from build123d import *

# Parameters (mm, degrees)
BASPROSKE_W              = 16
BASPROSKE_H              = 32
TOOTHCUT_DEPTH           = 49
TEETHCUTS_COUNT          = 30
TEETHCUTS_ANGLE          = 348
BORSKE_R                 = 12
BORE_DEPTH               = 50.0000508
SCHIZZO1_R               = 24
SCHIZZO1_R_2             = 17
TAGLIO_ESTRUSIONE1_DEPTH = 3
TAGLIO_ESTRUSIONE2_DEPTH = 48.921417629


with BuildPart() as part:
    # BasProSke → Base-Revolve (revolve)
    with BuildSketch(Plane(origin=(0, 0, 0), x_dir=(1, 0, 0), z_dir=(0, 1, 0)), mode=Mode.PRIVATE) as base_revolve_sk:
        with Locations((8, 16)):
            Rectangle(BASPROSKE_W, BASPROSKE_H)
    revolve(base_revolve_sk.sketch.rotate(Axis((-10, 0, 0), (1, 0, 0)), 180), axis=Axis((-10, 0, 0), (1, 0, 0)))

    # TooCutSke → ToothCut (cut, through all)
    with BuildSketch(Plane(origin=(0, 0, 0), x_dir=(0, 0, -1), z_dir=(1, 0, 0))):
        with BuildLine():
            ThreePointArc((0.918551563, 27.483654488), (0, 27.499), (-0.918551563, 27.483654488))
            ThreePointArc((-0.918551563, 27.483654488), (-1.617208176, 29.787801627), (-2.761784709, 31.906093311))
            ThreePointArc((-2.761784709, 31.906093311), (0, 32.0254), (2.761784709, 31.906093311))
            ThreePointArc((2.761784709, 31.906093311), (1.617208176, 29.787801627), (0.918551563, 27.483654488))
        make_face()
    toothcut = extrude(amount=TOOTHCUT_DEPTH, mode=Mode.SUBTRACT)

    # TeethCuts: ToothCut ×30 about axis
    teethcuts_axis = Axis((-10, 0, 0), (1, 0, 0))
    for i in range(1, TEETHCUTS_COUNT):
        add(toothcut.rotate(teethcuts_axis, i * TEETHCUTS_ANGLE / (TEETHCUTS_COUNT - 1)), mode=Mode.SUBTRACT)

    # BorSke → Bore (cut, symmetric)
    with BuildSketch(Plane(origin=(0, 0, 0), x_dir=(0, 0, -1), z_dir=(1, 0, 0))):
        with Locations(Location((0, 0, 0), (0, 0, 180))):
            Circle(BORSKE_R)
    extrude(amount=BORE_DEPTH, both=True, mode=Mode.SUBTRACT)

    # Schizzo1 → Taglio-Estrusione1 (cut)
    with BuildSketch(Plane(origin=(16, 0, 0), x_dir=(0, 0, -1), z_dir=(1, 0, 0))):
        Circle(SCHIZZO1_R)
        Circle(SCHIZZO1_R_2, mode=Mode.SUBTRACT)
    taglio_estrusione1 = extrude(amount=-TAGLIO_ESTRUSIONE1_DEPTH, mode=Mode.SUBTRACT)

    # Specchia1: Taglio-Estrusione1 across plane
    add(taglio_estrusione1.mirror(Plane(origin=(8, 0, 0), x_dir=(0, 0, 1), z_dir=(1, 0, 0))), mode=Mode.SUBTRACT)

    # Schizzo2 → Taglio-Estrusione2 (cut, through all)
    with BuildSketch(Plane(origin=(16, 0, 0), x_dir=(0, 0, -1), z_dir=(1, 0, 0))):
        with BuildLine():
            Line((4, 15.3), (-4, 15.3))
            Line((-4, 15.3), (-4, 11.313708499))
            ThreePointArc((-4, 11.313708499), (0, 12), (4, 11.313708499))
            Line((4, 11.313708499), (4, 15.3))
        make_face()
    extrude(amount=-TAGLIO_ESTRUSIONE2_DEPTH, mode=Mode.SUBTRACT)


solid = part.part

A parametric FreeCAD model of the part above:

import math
import FreeCAD as App
import Part
import Sketcher
from FreeCAD import Vector
Q = App.Units.Quantity


def add_polygon(sketch, points):
    """Adds a closed chain of lines whose ends are joined by coincident constraints."""
    first, n = sketch.GeometryCount, len(points)
    for a, b in zip(points, points[1:] + points[:1]):
        sketch.addGeometry(Part.LineSegment(App.Vector(*a, 0), App.Vector(*b, 0)), False)
    for i in range(n):
        sketch.addConstraint(Sketcher.Constraint("Coincident", first + i, 2, first + (i + 1) % n, 1))

doc = App.newDocument("Part")
body = doc.addObject("PartDesign::Body", "Body")

sketch1 = body.newObject("Sketcher::SketchObject", "Sketch")
sketch1.AttachmentSupport = (doc.getObject("XZ_Plane"), [""])
sketch1.MapMode = "FlatFace"
add_polygon(sketch1, [(0, -32), (0, 0), (16, 0), (16, -32)])
sketch1.addConstraint([
    Sketcher.Constraint("Vertical", 0),
    Sketcher.Constraint("Horizontal", 1),
    Sketcher.Constraint("Vertical", 2),
    Sketcher.Constraint("Horizontal", 3),
    Sketcher.Constraint("Coincident", 0, 2, -1, 1),
    Sketcher.Constraint("DistanceX", 1, 1, 1, 2, Q("16 mm")),
    Sketcher.Constraint("DistanceY", 0, 1, 0, 2, Q("32 mm")),
])
revolution = body.newObject("PartDesign::Revolution", "Revolution")
revolution.Profile = sketch1
revolution.ReferenceAxis = (sketch1, ["H_Axis"])
revolution.Angle = 360

sketch2 = body.newObject("Sketcher::SketchObject", "Sketch001")
sketch2.AttachmentSupport = (doc.getObject("YZ_Plane"), [""])
sketch2.MapMode = "FlatFace"
sketch2.addGeometry([
    Part.ArcOfCircle(Part.Circle(Vector(0, 0, 0), Vector(0, 0, 1), 27.499), math.radians(-1.914212), math.radians(1.914212)),
    Part.ArcOfCircle(Part.Circle(Vector(25.171243, -12.693642, 0), Vector(0, 0, 1), 12), math.radians(55.858574), math.radians(78.889547)),
    Part.ArcOfCircle(Part.Circle(Vector(0, 0, 0), Vector(0, 0, 1), 32.0254), math.radians(-4.947179), math.radians(4.947179)),
    Part.ArcOfCircle(Part.Circle(Vector(25.171243, 12.693642, 0), Vector(0, 0, 1), 12), math.radians(-78.889547), math.radians(-55.858574)),
], False)
sketch2.addConstraint([
    Sketcher.Constraint("Coincident", 0, 1, 1, 2),
    Sketcher.Constraint("Coincident", 1, 1, 2, 1),
    Sketcher.Constraint("Coincident", 2, 2, 3, 2),
    Sketcher.Constraint("Coincident", 3, 1, 0, 2),
    Sketcher.Constraint("Coincident", 0, 3, -1, 1),
    Sketcher.Constraint("Coincident", 2, 3, -1, 1),
    Sketcher.Constraint("Equal", 1, 3),
    Sketcher.Constraint("Symmetric", 1, 3, 3, 3, -1),
    Sketcher.Constraint("Radius", 1, Q("12 mm")),
    Sketcher.Constraint("Radius", 0, Q("27.499 mm")),
    Sketcher.Constraint("Radius", 2, Q("32.0254 mm")),
    Sketcher.Constraint("DistanceY", 1, 3, -1, 1, Q("12.693642 mm")),
    Sketcher.Constraint("DistanceY", 0, 1, -1, 1, Q("0.918552 mm")),
])
pocket1 = body.newObject("PartDesign::Pocket", "Pocket")
pocket1.Profile = sketch2
pocket1.Type = "ThroughAll"
pocket1.Reversed = True
doc.recompute()

polarpattern = body.newObject("PartDesign::PolarPattern", "PolarPattern")
polarpattern.Originals = [pocket1]
polarpattern.Axis = (doc.getObject("X_Axis"), [""])
polarpattern.Angle = 360
polarpattern.Occurrences = 30
body.Tip = polarpattern

sketch3 = body.newObject("Sketcher::SketchObject", "Sketch002")
sketch3.AttachmentSupport = (doc.getObject("YZ_Plane"), [""])
sketch3.MapMode = "FlatFace"
sketch3.addGeometry(Part.Circle(Vector(0, 0, 0), Vector(0, 0, 1), 12), False)
sketch3.addConstraint([
    Sketcher.Constraint("Coincident", 0, 3, -1, 1),
    Sketcher.Constraint("Diameter", 0, Q("24 mm")),
])
pocket2 = body.newObject("PartDesign::Pocket", "Pocket001")
pocket2.Profile = sketch3
pocket2.Length = 100.000102
pocket2.Midplane = True

sketch4 = body.newObject("Sketcher::SketchObject", "Sketch003")
sketch4.AttachmentSupport = (doc.getObject("YZ_Plane"), [""])
sketch4.MapMode = "FlatFace"
sketch4.AttachmentOffset = App.Placement(Vector(0, 0, 16), App.Rotation())
sketch4.addGeometry([
    Part.Circle(Vector(0, 0, 0), Vector(0, 0, 1), 24),
    Part.Circle(Vector(0, 0, 0), Vector(0, 0, 1), 17),
], False)
sketch4.addConstraint([
    Sketcher.Constraint("Coincident", 0, 3, -1, 1),
    Sketcher.Constraint("Coincident", 1, 3, -1, 1),
    Sketcher.Constraint("Diameter", 0, Q("48 mm")),
    Sketcher.Constraint("Diameter", 1, Q("34 mm")),
])
pocket3 = body.newObject("PartDesign::Pocket", "Pocket002")
pocket3.Profile = sketch4
pocket3.Length = 3
doc.recompute()

datumplane = body.newObject("PartDesign::Plane", "DatumPlane")
datumplane.AttachmentSupport = (doc.getObject("YZ_Plane"), [""])
datumplane.MapMode = "FlatFace"
datumplane.AttachmentOffset = App.Placement(Vector(0, 0, 8), App.Rotation())
mirrored = body.newObject("PartDesign::Mirrored", "Mirrored")
mirrored.Originals = [pocket3]
mirrored.MirrorPlane = (datumplane, [""])
body.Tip = mirrored

sketch5 = body.newObject("Sketcher::SketchObject", "Sketch004")
sketch5.AttachmentSupport = (doc.getObject("YZ_Plane"), [""])
sketch5.MapMode = "FlatFace"
sketch5.AttachmentOffset = App.Placement(Vector(0, 0, 16), App.Rotation())
sketch5.addGeometry([
    Part.LineSegment(Vector(15.3, -4, 0), Vector(15.3, 4, 0)),
    Part.LineSegment(Vector(15.3, 4, 0), Vector(11.313708, 4, 0)),
    Part.ArcOfCircle(Part.Circle(Vector(0, 0, 0), Vector(0, 0, 1), 12), math.radians(-19.471221), math.radians(19.471221)),
    Part.LineSegment(Vector(11.313708, -4, 0), Vector(15.3, -4, 0)),
], False)
sketch5.addConstraint([
    Sketcher.Constraint("Coincident", 0, 2, 1, 1),
    Sketcher.Constraint("Coincident", 1, 2, 2, 2),
    Sketcher.Constraint("Coincident", 2, 1, 3, 1),
    Sketcher.Constraint("Coincident", 3, 2, 0, 1),
    Sketcher.Constraint("Vertical", 0),
    Sketcher.Constraint("Horizontal", 1),
    Sketcher.Constraint("Horizontal", 3),
    Sketcher.Constraint("Coincident", 2, 3, -1, 1),
    Sketcher.Constraint("Vertical", 1, 2, 2, 1),
    Sketcher.Constraint("Radius", 2, Q("12 mm")),
    Sketcher.Constraint("DistanceY", 0, 1, 0, 2, Q("8 mm")),
    Sketcher.Constraint("DistanceX", -1, 1, 0, 2, Q("15.3 mm")),
])
pocket4 = body.newObject("PartDesign::Pocket", "Pocket003")
pocket4.Profile = sketch5
pocket4.Type = "ThroughAll"

doc.recompute()
